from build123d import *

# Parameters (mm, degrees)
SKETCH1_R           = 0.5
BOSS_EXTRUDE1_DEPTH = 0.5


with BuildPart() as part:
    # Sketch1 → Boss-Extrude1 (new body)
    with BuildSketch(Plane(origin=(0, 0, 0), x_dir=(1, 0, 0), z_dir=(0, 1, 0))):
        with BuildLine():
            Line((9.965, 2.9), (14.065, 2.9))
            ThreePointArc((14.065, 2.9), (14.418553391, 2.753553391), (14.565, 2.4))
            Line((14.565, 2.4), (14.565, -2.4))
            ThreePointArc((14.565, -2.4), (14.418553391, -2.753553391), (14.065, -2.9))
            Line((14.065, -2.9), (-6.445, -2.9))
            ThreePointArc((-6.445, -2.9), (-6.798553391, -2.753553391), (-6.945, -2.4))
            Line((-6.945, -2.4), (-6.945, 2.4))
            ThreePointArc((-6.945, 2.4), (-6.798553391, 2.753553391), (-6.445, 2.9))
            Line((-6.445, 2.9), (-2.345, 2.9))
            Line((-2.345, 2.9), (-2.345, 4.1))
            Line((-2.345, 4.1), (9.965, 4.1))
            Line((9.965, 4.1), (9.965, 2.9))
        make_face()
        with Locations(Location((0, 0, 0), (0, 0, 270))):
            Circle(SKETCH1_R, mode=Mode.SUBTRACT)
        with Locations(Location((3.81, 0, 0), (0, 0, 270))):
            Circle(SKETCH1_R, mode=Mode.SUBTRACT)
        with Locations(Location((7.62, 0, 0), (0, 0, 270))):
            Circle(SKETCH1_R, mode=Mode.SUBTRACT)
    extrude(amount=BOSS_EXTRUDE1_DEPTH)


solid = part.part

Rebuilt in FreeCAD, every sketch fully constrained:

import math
import FreeCAD as App
import Part
import Sketcher
Q = App.Units.Quantity

doc = App.newDocument("Part")
params = doc.addObject("Spreadsheet::Sheet", "Params")
for row, (alias, value) in enumerate([
    ("sketch1_diameter", "1 mm"),
    ("sketch1_width", "4.1 mm"),
    ("sketch1_height", "1.2 mm"),
    ("sketch1_height2", "4.8 mm"),
    ("sketch1_width2", "12.31 mm"),
    ("pad1_length", "0.5 mm"),
], start=1):
    params.set(f"A{row}", alias)
    params.set(f"B{row}", "=" + value)
    params.setAlias(f"B{row}", alias)

body = doc.addObject("PartDesign::Body", "Body")

sketch1 = body.newObject("Sketcher::SketchObject", "Sketch")
sketch1.AttachmentSupport = (doc.getObject("XZ_Plane"), [""])
sketch1.MapMode = "FlatFace"
sketch1.addGeometry([
    Part.LineSegment(App.Vector(14.06, -2.9, 0), App.Vector(9.96, -2.9, 0)),
    Part.LineSegment(App.Vector(9.96, -2.9, 0), App.Vector(9.96, -4.1, 0)),
    Part.LineSegment(App.Vector(9.96, -4.1, 0), App.Vector(-2.35, -4.1, 0)),
    Part.LineSegment(App.Vector(-2.35, -4.1, 0), App.Vector(-2.35, -2.9, 0)),
    Part.LineSegment(App.Vector(-2.35, -2.9, 0), App.Vector(-6.45, -2.9, 0)),
    Part.ArcOfCircle(Part.Circle(App.Vector(-6.45, -2.4, 0), App.Vector(0, 0, 1), 0.5), math.radians(180), math.radians(270)),
    Part.LineSegment(App.Vector(-6.95, -2.4, 0), App.Vector(-6.95, 2.4, 0)),
    Part.ArcOfCircle(Part.Circle(App.Vector(-6.45, 2.4, 0), App.Vector(0, 0, 1), 0.5), math.radians(90), math.radians(180)),
    Part.LineSegment(App.Vector(-6.45, 2.9, 0), App.Vector(14.06, 2.9, 0)),
    Part.ArcOfCircle(Part.Circle(App.Vector(14.07, 2.4, 0), App.Vector(0, 0, 1), 0.5), math.radians(0), math.radians(90)),
    Part.LineSegment(App.Vector(14.56, 2.4, 0), App.Vector(14.56, -2.4, 0)),
    Part.ArcOfCircle(Part.Circle(App.Vector(14.07, -2.4, 0), App.Vector(0, 0, 1), 0.5), math.radians(-90), math.radians(0)),
    Part.Circle(App.Vector(7.62, 0, 0), App.Vector(0, 0, 1), 0.5),
    Part.Circle(App.Vector(3.81, 0, 0), App.Vector(0, 0, 1), 0.5),
    Part.Circle(App.Vector(0, 0, 0), App.Vector(0, 0, 1), 0.5),
], False)
sketch1.addConstraint([
    Sketcher.Constraint("Coincident", 0, 2, 1, 1),
    Sketcher.Constraint("Coincident", 1, 2, 2, 1),
    Sketcher.Constraint("Coincident", 2, 2, 3, 1),
    Sketcher.Constraint("Coincident", 3, 2, 4, 1),
    Sketcher.Constraint("Tangent", 4, 2, 5, 2),
    Sketcher.Constraint("Tangent", 5, 1, 6, 1),
    Sketcher.Constraint("Tangent", 6, 2, 7, 2),
    Sketcher.Constraint("Tangent", 7, 1, 8, 1),
    Sketcher.Constraint("Tangent", 8, 2, 9, 2),
    Sketcher.Constraint("Tangent", 9, 1, 10, 1),
    Sketcher.Constraint("Tangent", 10, 2, 11, 2),
    Sketcher.Constraint("Tangent", 11, 1, 0, 1),
    Sketcher.Constraint("Horizontal", 0),
    Sketcher.Constraint("Vertical", 1),
    Sketcher.Constraint("Horizontal", 2),
    Sketcher.Constraint("Vertical", 3),
    Sketcher.Constraint("Horizontal", 4),
    Sketcher.Constraint("Vertical", 6),
    Sketcher.Constraint("Horizontal", 8),
    Sketcher.Constraint("Vertical", 10),
    Sketcher.Constraint("Coincident", 14, 3, -1, 1),
    Sketcher.Constraint("Equal", 5, 7),
    Sketcher.Constraint("Equal", 7, 9),
    Sketcher.Constraint("Equal", 9, 11),
    Sketcher.Constraint("Equal", 11, 12),
    Sketcher.Constraint("Equal", 12, 13),
    Sketcher.Constraint("Equal", 13, 14),
    Sketcher.Constraint("PointOnObject", 12, 3, -1),
    Sketcher.Constraint("PointOnObject", 13, 3, -1),
    Sketcher.Constraint("Horizontal", 5, 3, 11, 3),
    Sketcher.Constraint("Equal", 0, 4),
    Sketcher.Constraint("Diameter", 12, Q("1 mm")),
    Sketcher.Constraint("DistanceX", 0, 2, 0, 1, Q("4.1 mm")),
    Sketcher.Constraint("DistanceY", 1, 2, 1, 1, Q("1.2 mm")),
    Sketcher.Constraint("DistanceY", 6, 1, 6, 2, Q("4.8 mm")),
    Sketcher.Constraint("DistanceX", 2, 2, 2, 1, Q("12.31 mm")),
    Sketcher.Constraint("DistanceY", 5, 3, -1, 1, Q("2.4 mm")),
    Sketcher.Constraint("DistanceX", -1, 1, 12, 3, Q("7.62 mm")),
    Sketcher.Constraint("DistanceX", -1, 1, 13, 3, Q("3.81 mm")),
    Sketcher.Constraint("DistanceX", 5, 3, -1, 1, Q("6.445 mm")),
])
sketch1.setExpression("Constraints[31]", "Params.sketch1_diameter")
sketch1.setExpression("Constraints[32]", "Params.sketch1_width")
sketch1.setExpression("Constraints[33]", "Params.sketch1_height")
sketch1.setExpression("Constraints[34]", "Params.sketch1_height2")
sketch1.setExpression("Constraints[35]", "Params.sketch1_width2")
pad1 = body.newObject("PartDesign::Pad", "Pad")
pad1.Profile = sketch1
pad1.setExpression("Length", "Params.pad1_length")
pad1.Reversed = True

doc.recompute()
